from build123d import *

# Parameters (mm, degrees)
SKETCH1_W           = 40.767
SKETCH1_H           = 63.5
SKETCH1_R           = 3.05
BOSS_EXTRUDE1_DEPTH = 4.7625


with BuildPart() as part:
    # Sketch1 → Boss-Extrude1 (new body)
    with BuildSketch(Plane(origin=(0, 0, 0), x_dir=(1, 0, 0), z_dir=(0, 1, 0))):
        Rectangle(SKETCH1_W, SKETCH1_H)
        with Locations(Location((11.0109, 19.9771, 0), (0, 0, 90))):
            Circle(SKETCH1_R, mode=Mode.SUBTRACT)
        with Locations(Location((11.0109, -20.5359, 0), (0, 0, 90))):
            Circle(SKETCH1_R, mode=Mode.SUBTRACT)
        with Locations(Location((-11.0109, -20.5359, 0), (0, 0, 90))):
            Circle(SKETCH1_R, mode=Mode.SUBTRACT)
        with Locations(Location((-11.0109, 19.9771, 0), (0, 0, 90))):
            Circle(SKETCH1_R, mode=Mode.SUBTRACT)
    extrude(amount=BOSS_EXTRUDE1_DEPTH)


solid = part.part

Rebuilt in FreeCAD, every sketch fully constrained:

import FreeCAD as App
import Part
import Sketcher
from FreeCAD import Vector
Q = App.Units.Quantity

doc = App.newDocument("Part")
body = doc.addObject("PartDesign::Body", "Body")

sketch1 = body.newObject("Sketcher::SketchObject", "Sketch")
sketch1.AttachmentSupport = (doc.getObject("XZ_Plane"), [""])
sketch1.MapMode = "FlatFace"
sketch1.addGeometry(Part.LineSegment(Vector(-20.4, -31.8, 0), Vector(-20.4, 31.8, 0)), False)
sketch1.addGeometry(Part.LineSegment(Vector(-20.4, 31.8, 0), Vector(20.4, 31.8, 0)), False)
sketch1.addGeometry(Part.LineSegment(Vector(20.4, 31.8, 0), Vector(20.4, -31.8, 0)), False)
sketch1.addGeometry(Part.LineSegment(Vector(20.4, -31.8, 0), Vector(-20.4, -31.8, 0)), False)
sketch1.addGeometry(Part.Circle(Vector(-11, 20.5, 0), Vector(0, 0, 1), 3), False)
sketch1.addGeometry(Part.Circle(Vector(11, 20.5, 0), Vector(0, 0, 1), 3), False)
sketch1.addGeometry(Part.Circle(Vector(-11, -20, 0), Vector(0, 0, 1), 3), False)
sketch1.addGeometry(Part.Circle(Vector(11, -20, 0), Vector(0, 0, 1), 3), False)
sketch1.addConstraint(Sketcher.Constraint("Coincident", 0, 2, 1, 1))
sketch1.addConstraint(Sketcher.Constraint("Coincident", 1, 2, 2, 1))
sketch1.addConstraint(Sketcher.Constraint("Coincident", 2, 2, 3, 1))
sketch1.addConstraint(Sketcher.Constraint("Coincident", 3, 2, 0, 1))
sketch1.addConstraint(Sketcher.Constraint("Vertical", 0))
sketch1.addConstraint(Sketcher.Constraint("Horizontal", 1))
sketch1.addConstraint(Sketcher.Constraint("Vertical", 2))
sketch1.addConstraint(Sketcher.Constraint("Horizontal", 3))
sketch1.addConstraint(Sketcher.Constraint("Equal", 4, 5))
sketch1.addConstraint(Sketcher.Constraint("Equal", 5, 6))
sketch1.addConstraint(Sketcher.Constraint("Equal", 6, 7))
sketch1.addConstraint(Sketcher.Constraint("Symmetric", 0, 2, 2, 2, -1, 1))
sketch1.addConstraint(Sketcher.Constraint("Symmetric", 4, 3, 5, 3, -2))
sketch1.addConstraint(Sketcher.Constraint("Symmetric", 6, 3, 7, 3, -2))
sketch1.addConstraint(Sketcher.Constraint("Vertical", 4, 3, 6, 3))
sketch1.addConstraint(Sketcher.Constraint("DistanceY", 0, 1, 0, 2, Q("2.5 in")))
sketch1.addConstraint(Sketcher.Constraint("Diameter", 4, 6.1))
sketch1.addConstraint(Sketcher.Constraint("DistanceX", 1, 1, 1, 2, Q("1.605 in")))
sketch1.addConstraint(Sketcher.Constraint("DistanceX", 4, 3, 5, 3, Q("0.867 in")))
sketch1.addConstraint(Sketcher.Constraint("DistanceY", 6, 3, 4, 3, Q("1.595 in")))
sketch1.addConstraint(Sketcher.Constraint("DistanceY", -1, 1, 4, 3, Q("0.8085 in")))
pad1 = body.newObject("PartDesign::Pad", "Pad")
pad1.Profile = sketch1
pad1.Length = Q("0.1875 in")
pad1.Reversed = True

doc.recompute()
